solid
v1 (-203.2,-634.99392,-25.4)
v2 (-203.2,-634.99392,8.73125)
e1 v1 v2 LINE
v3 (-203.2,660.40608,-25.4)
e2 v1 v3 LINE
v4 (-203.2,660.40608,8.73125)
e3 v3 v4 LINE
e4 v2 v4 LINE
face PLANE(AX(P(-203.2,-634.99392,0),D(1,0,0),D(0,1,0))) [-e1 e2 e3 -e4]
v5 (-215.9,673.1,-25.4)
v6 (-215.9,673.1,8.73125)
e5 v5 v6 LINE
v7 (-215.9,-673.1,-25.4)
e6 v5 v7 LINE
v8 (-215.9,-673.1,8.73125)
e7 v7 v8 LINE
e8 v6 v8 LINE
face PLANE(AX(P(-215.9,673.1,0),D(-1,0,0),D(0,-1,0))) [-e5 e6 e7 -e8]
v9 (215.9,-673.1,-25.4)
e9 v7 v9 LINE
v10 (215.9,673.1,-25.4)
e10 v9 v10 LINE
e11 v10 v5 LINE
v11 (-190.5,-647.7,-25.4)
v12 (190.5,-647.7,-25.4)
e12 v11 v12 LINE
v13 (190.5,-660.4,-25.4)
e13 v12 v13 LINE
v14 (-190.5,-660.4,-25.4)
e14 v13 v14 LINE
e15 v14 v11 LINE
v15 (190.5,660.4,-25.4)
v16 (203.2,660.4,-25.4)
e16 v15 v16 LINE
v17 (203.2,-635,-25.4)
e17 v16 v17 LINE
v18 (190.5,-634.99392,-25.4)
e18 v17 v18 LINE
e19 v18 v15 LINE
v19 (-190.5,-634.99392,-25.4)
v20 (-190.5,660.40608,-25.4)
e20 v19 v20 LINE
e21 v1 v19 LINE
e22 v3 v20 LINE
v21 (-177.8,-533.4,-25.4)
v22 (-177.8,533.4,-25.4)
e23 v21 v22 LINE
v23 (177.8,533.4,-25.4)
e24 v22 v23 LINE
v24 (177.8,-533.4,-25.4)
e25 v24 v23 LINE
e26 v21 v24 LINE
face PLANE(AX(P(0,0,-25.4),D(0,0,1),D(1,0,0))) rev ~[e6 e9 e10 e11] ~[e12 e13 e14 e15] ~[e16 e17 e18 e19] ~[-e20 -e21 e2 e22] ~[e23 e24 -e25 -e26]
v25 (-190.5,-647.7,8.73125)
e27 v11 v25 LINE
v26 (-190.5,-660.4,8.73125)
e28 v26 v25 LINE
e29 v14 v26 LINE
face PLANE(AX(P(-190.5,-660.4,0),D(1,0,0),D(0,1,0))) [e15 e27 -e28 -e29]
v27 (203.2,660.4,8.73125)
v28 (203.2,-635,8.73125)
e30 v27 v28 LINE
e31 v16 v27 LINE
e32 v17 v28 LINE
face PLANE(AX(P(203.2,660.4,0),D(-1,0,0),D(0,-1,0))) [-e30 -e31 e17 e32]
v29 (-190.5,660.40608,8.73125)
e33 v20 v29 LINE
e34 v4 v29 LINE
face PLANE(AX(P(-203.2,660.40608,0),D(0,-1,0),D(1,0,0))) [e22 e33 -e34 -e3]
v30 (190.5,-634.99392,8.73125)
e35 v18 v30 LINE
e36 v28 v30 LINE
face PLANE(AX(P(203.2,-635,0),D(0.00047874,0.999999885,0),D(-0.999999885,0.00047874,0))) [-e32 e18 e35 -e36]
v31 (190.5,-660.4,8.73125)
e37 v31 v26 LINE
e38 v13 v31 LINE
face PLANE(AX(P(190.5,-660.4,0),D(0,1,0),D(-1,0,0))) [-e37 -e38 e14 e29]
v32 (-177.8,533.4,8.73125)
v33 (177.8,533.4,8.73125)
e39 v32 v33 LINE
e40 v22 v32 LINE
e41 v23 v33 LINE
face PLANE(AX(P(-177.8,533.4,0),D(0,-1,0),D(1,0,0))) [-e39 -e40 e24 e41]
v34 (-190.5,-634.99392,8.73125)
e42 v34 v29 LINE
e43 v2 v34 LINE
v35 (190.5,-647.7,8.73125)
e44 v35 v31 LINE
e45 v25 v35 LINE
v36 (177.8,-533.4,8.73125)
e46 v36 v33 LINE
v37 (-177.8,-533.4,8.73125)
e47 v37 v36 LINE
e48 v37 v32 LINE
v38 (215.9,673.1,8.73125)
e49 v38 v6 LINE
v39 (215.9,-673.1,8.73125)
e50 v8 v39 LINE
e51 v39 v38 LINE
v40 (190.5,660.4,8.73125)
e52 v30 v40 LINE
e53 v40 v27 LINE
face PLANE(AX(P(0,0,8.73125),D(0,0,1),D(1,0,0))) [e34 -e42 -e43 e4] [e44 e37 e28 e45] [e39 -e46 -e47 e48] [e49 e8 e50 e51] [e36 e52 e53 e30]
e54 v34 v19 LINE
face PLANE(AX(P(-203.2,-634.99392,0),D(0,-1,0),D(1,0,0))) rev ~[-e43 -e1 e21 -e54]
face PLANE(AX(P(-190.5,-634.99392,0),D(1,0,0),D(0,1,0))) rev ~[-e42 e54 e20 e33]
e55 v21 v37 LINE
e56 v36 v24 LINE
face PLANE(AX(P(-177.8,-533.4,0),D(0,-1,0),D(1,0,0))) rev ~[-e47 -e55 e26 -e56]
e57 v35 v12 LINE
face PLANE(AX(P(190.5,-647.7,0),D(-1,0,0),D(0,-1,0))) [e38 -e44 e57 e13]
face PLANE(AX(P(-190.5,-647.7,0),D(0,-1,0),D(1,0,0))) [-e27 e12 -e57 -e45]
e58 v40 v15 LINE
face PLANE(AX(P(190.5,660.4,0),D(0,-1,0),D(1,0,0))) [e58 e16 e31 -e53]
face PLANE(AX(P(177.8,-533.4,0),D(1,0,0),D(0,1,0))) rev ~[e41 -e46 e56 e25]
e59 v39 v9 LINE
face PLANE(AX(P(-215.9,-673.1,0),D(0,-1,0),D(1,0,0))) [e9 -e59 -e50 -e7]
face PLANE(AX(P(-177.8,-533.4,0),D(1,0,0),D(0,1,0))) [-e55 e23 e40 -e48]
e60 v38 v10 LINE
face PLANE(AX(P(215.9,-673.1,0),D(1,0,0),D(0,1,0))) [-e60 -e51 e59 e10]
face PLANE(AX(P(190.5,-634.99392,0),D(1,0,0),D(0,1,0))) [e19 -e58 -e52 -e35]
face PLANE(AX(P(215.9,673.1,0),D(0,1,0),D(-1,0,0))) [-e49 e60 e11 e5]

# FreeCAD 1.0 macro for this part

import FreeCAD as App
import Part
import Sketcher

V = App.Vector
Q = App.Units.Quantity

doc = App.newDocument("Part")
params = doc.addObject("Spreadsheet::Sheet", "Params")
for row, (alias, value) in enumerate([
    ("sketch1_width", "17 in"),
    ("sketch1_width2", "15 in"),
    ("sketch1_width3", "14 in"),
    ("sketch1_height", "53 in"),
    ("sketch1_height2", "42 in"),
    ("pad1_length", "0.34375 in"),
    ("pad1_length2", "1 in"),
], start=1):
    params.set(f"A{row}", alias)
    params.set(f"B{row}", "=" + value)
    params.setAlias(f"B{row}", alias)

body = doc.addObject("PartDesign::Body", "Body")

sketch1 = doc.addObject("Sketcher::SketchObject", "Sketch")
body.addObject(sketch1)
sketch1.AttachmentSupport = (doc.XY_Plane, [""])
sketch1.MapMode = "FlatFace"
sketch1.addGeometry([
    Part.LineSegment(V(216, 673, 0), V(-216, 673, 0)),
    Part.LineSegment(V(-216, 673, 0), V(-216, -673, 0)),
    Part.LineSegment(V(-216, -673, 0), V(216, -673, 0)),
    Part.LineSegment(V(216, -673, 0), V(216, 673, 0)),
    Part.LineSegment(V(190, -648, 0), V(190, -660, 0)),
    Part.LineSegment(V(190, -660, 0), V(-190, -660, 0)),
    Part.LineSegment(V(-190, -660, 0), V(-190, -648, 0)),
    Part.LineSegment(V(-190, -648, 0), V(190, -648, 0)),
    Part.LineSegment(V(178, -533, 0), V(-178, -533, 0)),
    Part.LineSegment(V(-178, -533, 0), V(-178, 533, 0)),
    Part.LineSegment(V(-178, 533, 0), V(178, 533, 0)),
    Part.LineSegment(V(178, 533, 0), V(178, -533, 0)),
    Part.LineSegment(V(-190, -635, 0), V(-203, -635, 0)),
    Part.LineSegment(V(-203, -635, 0), V(-203, 660, 0)),
    Part.LineSegment(V(-203, 660, 0), V(-190, 660, 0)),
    Part.LineSegment(V(-190, 660, 0), V(-190, -635, 0)),
    Part.LineSegment(V(190, 660, 0), V(203, 660, 0)),
    Part.LineSegment(V(203, 660, 0), V(203, -635, 0)),
    Part.LineSegment(V(203, -635, 0), V(190, -635, 0)),
    Part.LineSegment(V(190, -635, 0), V(190, 660, 0)),
], False)
sketch1.addConstraint([
    Sketcher.Constraint("Coincident", 0, 2, 1, 1),
    Sketcher.Constraint("Coincident", 1, 2, 2, 1),
    Sketcher.Constraint("Coincident", 2, 2, 3, 1),
    Sketcher.Constraint("Coincident", 3, 2, 0, 1),
    Sketcher.Constraint("Coincident", 4, 2, 5, 1),
    Sketcher.Constraint("Coincident", 5, 2, 6, 1),
    Sketcher.Constraint("Coincident", 6, 2, 7, 1),
    Sketcher.Constraint("Coincident", 7, 2, 4, 1),
    Sketcher.Constraint("Coincident", 8, 2, 9, 1),
    Sketcher.Constraint("Coincident", 9, 2, 10, 1),
    Sketcher.Constraint("Coincident", 10, 2, 11, 1),
    Sketcher.Constraint("Coincident", 11, 2, 8, 1),
    Sketcher.Constraint("Coincident", 12, 2, 13, 1),
    Sketcher.Constraint("Coincident", 13, 2, 14, 1),
    Sketcher.Constraint("Coincident", 14, 2, 15, 1),
    Sketcher.Constraint("Coincident", 15, 2, 12, 1),
    Sketcher.Constraint("Coincident", 16, 2, 17, 1),
    Sketcher.Constraint("Coincident", 17, 2, 18, 1),
    Sketcher.Constraint("Coincident", 18, 2, 19, 1),
    Sketcher.Constraint("Coincident", 19, 2, 16, 1),
    Sketcher.Constraint("Horizontal", 0),
    Sketcher.Constraint("Vertical", 1),
    Sketcher.Constraint("Horizontal", 2),
    Sketcher.Constraint("Vertical", 3),
    Sketcher.Constraint("Vertical", 4),
    Sketcher.Constraint("Horizontal", 5),
    Sketcher.Constraint("Vertical", 6),
    Sketcher.Constraint("Horizontal", 7),
    Sketcher.Constraint("Horizontal", 8),
    Sketcher.Constraint("Vertical", 9),
    Sketcher.Constraint("Horizontal", 10),
    Sketcher.Constraint("Vertical", 11),
    Sketcher.Constraint("Horizontal", 12),
    Sketcher.Constraint("Vertical", 13),
    Sketcher.Constraint("Horizontal", 14),
    Sketcher.Constraint("Vertical", 15),
    Sketcher.Constraint("Horizontal", 16),
    Sketcher.Constraint("Vertical", 17),
    Sketcher.Constraint("Vertical", 19),
    Sketcher.Constraint("Symmetric", 0, 2, 2, 2, -1, 1),
    Sketcher.Constraint("Symmetric", 8, 2, 10, 2, -1, 1),
    Sketcher.Constraint("Symmetric", 5, 2, 19, 2, -1, 1),
    Sketcher.Constraint("Symmetric", 15, 2, 18, 2, -2),
    Sketcher.Constraint("Vertical", 7, 2, 18, 2),
    Sketcher.Constraint("Equal", 14, 16),
    Sketcher.Constraint("Equal", 16, 4),
    Sketcher.Constraint("Equal", 15, 17),
    Sketcher.Constraint("DistanceX", 0, 2, 0, 1, Q("17 in")),
    Sketcher.Constraint("DistanceX", 5, 2, 5, 1, Q("15 in")),
    Sketcher.Constraint("DistanceX", 8, 2, 8, 1, Q("14 in")),
    Sketcher.Constraint("DistanceY", 1, 2, 1, 1, Q("53 in")),
    Sketcher.Constraint("DistanceY", 9, 1, 9, 2, Q("42 in")),
    Sketcher.Constraint("DistanceY", 13, 1, 13, 2, Q("51 in")),
    Sketcher.Constraint("DistanceX", 12, 2, 12, 1, Q("0.5 in")),
    Sketcher.Constraint("DistanceY", 4, 2, -1, 1, Q("26 in")),
    Sketcher.Constraint("DistanceY", 19, 1, 19, 2, Q("1295.39392 mm")),
])
sketch1.setExpression("Constraints[47]", "Params.sketch1_width")
sketch1.setExpression("Constraints[48]", "Params.sketch1_width2")
sketch1.setExpression("Constraints[49]", "Params.sketch1_width3")
sketch1.setExpression("Constraints[50]", "Params.sketch1_height")
sketch1.setExpression("Constraints[51]", "Params.sketch1_height2")
pad1 = doc.addObject("PartDesign::Pad", "Pad")
body.addObject(pad1)
pad1.Profile = sketch1
pad1.Type = "TwoLengths"
pad1.setExpression("Length", "Params.pad1_length")
pad1.setExpression("Length2", "Params.pad1_length2")

doc.recompute()
